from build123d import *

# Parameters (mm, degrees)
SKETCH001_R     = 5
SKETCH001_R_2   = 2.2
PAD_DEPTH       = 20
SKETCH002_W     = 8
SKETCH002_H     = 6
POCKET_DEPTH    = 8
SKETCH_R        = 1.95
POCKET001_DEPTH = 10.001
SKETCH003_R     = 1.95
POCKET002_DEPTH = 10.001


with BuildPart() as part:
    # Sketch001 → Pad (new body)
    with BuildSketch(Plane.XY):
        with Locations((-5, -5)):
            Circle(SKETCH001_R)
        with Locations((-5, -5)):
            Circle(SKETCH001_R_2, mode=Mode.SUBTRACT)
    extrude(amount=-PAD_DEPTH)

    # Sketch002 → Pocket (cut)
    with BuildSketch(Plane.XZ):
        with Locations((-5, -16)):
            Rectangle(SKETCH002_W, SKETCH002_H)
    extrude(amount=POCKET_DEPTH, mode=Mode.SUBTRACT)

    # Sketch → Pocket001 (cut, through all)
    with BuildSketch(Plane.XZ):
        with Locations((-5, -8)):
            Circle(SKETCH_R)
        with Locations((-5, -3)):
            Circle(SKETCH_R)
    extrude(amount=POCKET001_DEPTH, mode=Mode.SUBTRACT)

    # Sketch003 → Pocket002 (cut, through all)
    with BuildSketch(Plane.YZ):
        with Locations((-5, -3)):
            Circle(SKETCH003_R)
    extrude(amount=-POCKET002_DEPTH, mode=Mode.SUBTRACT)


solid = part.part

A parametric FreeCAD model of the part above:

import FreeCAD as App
import Part
import Sketcher
from FreeCAD import Vector
Q = App.Units.Quantity


def add_polygon(sketch, points):
    """Adds a closed chain of lines whose ends are joined by coincident constraints."""
    first, n = sketch.GeometryCount, len(points)
    for a, b in zip(points, points[1:] + points[:1]):
        sketch.addGeometry(Part.LineSegment(App.Vector(*a, 0), App.Vector(*b, 0)), False)
    for i in range(n):
        sketch.addConstraint(Sketcher.Constraint("Coincident", first + i, 2, first + (i + 1) % n, 1))

doc = App.newDocument("Part")
body = doc.addObject("PartDesign::Body", "Body")

sketch1 = body.newObject("Sketcher::SketchObject", "Sketch")
sketch1.AttachmentSupport = (doc.getObject("XY_Plane"), [""])
sketch1.MapMode = "FlatFace"
sketch1.addGeometry(Part.Circle(Vector(-5, -5, 0), Vector(0, 0, 1), 5), False)
sketch1.addGeometry(Part.Circle(Vector(-5, -5, 0), Vector(0, 0, 1), 2.2), False)
sketch1.addConstraint(Sketcher.Constraint("Coincident", 1, 3, 0, 3))
sketch1.addConstraint(Sketcher.Constraint("Diameter", 0, Q("10 mm")))
sketch1.addConstraint(Sketcher.Constraint("Diameter", 1, Q("4.4 mm")))
sketch1.addConstraint(Sketcher.Constraint("DistanceX", 0, 3, -1, 1, Q("5 mm")))
sketch1.addConstraint(Sketcher.Constraint("DistanceY", 0, 3, -1, 1, Q("5 mm")))
pad1 = body.newObject("PartDesign::Pad", "Pad")
pad1.Profile = sketch1
pad1.Length = 20
pad1.Reversed = True

sketch2 = body.newObject("Sketcher::SketchObject", "Sketch001")
sketch2.AttachmentSupport = (doc.getObject("XZ_Plane"), [""])
sketch2.MapMode = "FlatFace"
add_polygon(sketch2, [(-9, -13), (-9, -19), (-1, -19), (-1, -13)])
sketch2.addConstraint(Sketcher.Constraint("Vertical", 0))
sketch2.addConstraint(Sketcher.Constraint("Horizontal", 1))
sketch2.addConstraint(Sketcher.Constraint("Vertical", 2))
sketch2.addConstraint(Sketcher.Constraint("Horizontal", 3))
sketch2.addConstraint(Sketcher.Constraint("DistanceX", 1, 1, 1, 2, Q("8 mm")))
sketch2.addConstraint(Sketcher.Constraint("DistanceY", 0, 2, 0, 1, Q("6 mm")))
sketch2.addConstraint(Sketcher.Constraint("DistanceX", 0, 2, -1, 1, Q("9 mm")))
sketch2.addConstraint(Sketcher.Constraint("DistanceY", 0, 2, -1, 1, Q("19 mm")))
pocket1 = body.newObject("PartDesign::Pocket", "Pocket")
pocket1.Profile = sketch2
pocket1.Length = 8
pocket1.Reversed = True

sketch3 = body.newObject("Sketcher::SketchObject", "Sketch002")
sketch3.AttachmentSupport = (doc.getObject("XZ_Plane"), [""])
sketch3.MapMode = "FlatFace"
sketch3.addGeometry(Part.Circle(Vector(-5, -8, 0), Vector(0, 0, 1), 1.9), False)
sketch3.addGeometry(Part.Circle(Vector(-5, -3, 0), Vector(0, 0, 1), 1.9), False)
sketch3.addConstraint(Sketcher.Constraint("Equal", 0, 1))
sketch3.addConstraint(Sketcher.Constraint("Vertical", 0, 3, 1, 3))
sketch3.addConstraint(Sketcher.Constraint("Diameter", 0, Q("3.9 mm")))
sketch3.addConstraint(Sketcher.Constraint("DistanceX", 0, 3, -1, 1, Q("5 mm")))
sketch3.addConstraint(Sketcher.Constraint("DistanceY", 0, 3, -1, 1, Q("8 mm")))
sketch3.addConstraint(Sketcher.Constraint("DistanceY", 1, 3, -1, 1, Q("3 mm")))
pocket2 = body.newObject("PartDesign::Pocket", "Pocket001")
pocket2.Profile = sketch3
pocket2.Type = "ThroughAll"
pocket2.Reversed = True

sketch4 = body.newObject("Sketcher::SketchObject", "Sketch003")
sketch4.AttachmentSupport = (doc.getObject("YZ_Plane"), [""])
sketch4.MapMode = "FlatFace"
sketch4.addGeometry(Part.Circle(Vector(-5, -3, 0), Vector(0, 0, 1), 1.9), False)
sketch4.addConstraint(Sketcher.Constraint("Diameter", 0, Q("3.9 mm")))
sketch4.addConstraint(Sketcher.Constraint("DistanceX", 0, 3, -1, 1, Q("5 mm")))
sketch4.addConstraint(Sketcher.Constraint("DistanceY", 0, 3, -1, 1, Q("3 mm")))
pocket3 = body.newObject("PartDesign::Pocket", "Pocket002")
pocket3.Profile = sketch4
pocket3.Type = "ThroughAll"

doc.recompute()
